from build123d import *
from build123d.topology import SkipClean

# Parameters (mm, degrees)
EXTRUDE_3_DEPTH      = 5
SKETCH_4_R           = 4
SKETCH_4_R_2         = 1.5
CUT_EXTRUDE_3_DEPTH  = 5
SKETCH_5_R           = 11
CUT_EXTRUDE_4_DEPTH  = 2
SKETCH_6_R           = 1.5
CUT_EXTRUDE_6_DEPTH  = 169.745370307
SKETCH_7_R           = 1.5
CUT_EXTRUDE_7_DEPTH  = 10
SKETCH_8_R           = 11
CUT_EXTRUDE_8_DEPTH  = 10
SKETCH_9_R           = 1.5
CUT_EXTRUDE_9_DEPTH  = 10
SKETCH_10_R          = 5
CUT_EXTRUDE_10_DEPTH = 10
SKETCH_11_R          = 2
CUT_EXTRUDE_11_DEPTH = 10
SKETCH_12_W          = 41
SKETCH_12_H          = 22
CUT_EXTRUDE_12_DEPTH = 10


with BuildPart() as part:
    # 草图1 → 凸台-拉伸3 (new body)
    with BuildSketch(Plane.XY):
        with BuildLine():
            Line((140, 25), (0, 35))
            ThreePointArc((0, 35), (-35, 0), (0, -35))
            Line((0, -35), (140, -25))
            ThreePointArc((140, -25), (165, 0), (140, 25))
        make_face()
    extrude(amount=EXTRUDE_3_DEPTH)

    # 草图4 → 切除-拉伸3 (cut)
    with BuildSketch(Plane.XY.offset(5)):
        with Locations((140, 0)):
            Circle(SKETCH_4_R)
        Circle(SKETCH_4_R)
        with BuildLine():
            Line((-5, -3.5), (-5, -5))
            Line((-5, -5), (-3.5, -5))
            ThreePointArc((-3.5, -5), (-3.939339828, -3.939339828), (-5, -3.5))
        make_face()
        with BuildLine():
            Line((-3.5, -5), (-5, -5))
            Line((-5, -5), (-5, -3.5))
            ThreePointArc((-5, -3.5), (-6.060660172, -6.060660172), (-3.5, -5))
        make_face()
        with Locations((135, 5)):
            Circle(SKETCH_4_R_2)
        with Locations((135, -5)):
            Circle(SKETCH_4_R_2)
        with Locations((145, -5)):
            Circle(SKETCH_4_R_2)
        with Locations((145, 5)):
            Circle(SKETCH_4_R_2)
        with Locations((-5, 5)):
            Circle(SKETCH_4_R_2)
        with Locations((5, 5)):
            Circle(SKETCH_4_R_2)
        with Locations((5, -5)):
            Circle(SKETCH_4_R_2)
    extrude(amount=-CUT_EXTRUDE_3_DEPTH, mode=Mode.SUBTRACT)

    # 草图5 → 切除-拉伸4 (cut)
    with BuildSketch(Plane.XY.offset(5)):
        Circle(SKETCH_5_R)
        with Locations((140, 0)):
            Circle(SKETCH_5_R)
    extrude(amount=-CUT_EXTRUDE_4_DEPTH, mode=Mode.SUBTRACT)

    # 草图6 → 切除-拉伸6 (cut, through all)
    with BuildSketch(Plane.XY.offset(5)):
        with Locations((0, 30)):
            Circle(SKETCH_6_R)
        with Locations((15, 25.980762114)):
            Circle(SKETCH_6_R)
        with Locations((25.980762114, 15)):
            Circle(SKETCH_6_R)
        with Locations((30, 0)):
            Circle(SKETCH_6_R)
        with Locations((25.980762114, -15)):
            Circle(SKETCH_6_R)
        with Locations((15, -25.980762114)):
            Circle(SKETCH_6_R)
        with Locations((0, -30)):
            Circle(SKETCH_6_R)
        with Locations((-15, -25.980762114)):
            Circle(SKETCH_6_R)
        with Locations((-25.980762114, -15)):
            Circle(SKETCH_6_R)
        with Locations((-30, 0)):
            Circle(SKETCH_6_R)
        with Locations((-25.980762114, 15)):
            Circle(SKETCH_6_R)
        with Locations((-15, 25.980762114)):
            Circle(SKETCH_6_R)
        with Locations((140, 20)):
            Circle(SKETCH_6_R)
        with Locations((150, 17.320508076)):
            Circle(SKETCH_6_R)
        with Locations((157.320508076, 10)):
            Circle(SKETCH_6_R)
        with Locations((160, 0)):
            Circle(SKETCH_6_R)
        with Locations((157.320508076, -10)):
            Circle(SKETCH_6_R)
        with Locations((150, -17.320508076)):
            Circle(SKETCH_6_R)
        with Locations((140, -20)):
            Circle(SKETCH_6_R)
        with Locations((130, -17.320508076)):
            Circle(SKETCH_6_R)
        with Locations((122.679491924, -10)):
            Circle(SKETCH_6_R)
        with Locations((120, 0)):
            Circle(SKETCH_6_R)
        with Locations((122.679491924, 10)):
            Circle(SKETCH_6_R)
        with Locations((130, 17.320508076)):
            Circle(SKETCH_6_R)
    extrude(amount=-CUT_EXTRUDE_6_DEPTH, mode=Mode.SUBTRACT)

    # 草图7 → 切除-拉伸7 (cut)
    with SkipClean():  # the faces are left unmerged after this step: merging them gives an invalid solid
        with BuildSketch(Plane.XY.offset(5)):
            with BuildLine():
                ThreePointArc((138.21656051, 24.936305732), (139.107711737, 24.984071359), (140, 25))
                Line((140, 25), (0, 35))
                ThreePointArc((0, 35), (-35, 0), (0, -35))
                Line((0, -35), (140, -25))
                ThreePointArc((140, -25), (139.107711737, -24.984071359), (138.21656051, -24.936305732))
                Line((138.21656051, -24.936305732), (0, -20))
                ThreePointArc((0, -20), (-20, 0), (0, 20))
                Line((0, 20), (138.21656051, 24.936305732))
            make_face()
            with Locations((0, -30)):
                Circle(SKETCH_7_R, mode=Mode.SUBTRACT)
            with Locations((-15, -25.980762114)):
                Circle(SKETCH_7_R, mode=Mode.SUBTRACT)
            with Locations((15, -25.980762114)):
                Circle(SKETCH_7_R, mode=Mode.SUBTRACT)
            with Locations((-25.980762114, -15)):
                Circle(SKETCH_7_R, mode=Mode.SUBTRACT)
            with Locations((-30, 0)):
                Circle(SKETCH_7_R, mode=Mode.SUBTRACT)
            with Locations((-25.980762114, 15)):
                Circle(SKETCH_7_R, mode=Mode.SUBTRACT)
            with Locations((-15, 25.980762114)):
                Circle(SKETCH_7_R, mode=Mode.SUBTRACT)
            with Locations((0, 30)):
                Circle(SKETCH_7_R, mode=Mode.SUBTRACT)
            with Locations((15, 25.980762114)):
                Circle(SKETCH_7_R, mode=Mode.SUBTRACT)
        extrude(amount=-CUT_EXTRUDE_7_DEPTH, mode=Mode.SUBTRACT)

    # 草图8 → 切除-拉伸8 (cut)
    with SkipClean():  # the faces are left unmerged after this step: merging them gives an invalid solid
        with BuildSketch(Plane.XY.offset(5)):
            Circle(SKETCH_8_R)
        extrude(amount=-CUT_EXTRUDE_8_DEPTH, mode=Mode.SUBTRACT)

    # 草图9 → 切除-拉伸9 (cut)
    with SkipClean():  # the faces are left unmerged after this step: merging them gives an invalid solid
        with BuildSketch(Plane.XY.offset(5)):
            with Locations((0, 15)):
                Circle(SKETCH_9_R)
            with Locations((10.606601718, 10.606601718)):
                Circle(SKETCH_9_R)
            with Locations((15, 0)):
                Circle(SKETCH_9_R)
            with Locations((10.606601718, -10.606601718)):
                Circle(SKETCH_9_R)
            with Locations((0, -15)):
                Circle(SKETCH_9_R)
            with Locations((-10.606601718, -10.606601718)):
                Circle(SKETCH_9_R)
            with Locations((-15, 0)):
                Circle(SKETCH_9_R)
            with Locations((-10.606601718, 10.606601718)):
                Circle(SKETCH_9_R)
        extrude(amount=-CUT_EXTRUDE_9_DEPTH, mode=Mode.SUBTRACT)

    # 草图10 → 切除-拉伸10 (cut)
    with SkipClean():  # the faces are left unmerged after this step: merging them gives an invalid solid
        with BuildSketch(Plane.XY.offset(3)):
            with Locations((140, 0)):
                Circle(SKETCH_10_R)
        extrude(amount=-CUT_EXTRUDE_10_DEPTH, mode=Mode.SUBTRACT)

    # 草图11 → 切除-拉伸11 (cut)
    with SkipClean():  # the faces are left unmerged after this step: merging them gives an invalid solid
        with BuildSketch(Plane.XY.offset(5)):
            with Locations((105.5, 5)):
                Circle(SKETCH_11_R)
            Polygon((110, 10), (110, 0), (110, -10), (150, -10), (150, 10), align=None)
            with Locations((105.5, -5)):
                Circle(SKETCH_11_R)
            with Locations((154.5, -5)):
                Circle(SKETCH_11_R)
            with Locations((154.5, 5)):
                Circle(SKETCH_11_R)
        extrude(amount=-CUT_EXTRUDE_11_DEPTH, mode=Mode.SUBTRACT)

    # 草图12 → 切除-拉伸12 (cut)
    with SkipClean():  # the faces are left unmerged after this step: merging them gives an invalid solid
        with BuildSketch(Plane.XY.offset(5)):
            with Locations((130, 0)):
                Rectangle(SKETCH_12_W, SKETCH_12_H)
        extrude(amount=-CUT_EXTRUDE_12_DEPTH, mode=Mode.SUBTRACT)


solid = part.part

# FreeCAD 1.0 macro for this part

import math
import FreeCAD as App
import Part
import Sketcher

doc = App.newDocument("Part")
body = doc.addObject("PartDesign::Body", "Body")

sketch1 = body.newObject("Sketcher::SketchObject", "Sketch")
sketch1.AttachmentSupport = (doc.getObject("XY_Plane"), [""])
sketch1.MapMode = "FlatFace"
sketch1.addGeometry([
    Part.LineSegment(App.Vector(140, 25, 0), App.Vector(0, 35, 0)),
    Part.ArcOfCircle(Part.Circle(App.Vector(0, 0, 0), App.Vector(0, 0, 1), 35), math.radians(90), math.radians(270)),
    Part.LineSegment(App.Vector(0, -35, 0), App.Vector(140, -25, 0)),
    Part.ArcOfCircle(Part.Circle(App.Vector(140, 0, 0), App.Vector(0, 0, 1), 25), math.radians(-90), math.radians(90)),
], False)
sketch1.addConstraint([
    Sketcher.Constraint("Coincident", 0, 2, 1, 1),
    Sketcher.Constraint("Coincident", 1, 2, 2, 1),
    Sketcher.Constraint("Coincident", 2, 2, 3, 1),
    Sketcher.Constraint("Coincident", 3, 2, 0, 1),
    Sketcher.Constraint("Coincident", 1, 3, -1, 1),
    Sketcher.Constraint("Symmetric", 2, 2, 3, 2, -1),
    Sketcher.Constraint("PointOnObject", 0, 2, -2),
    Sketcher.Constraint("PointOnObject", 1, 2, -2),
    Sketcher.Constraint("Vertical", 3, 3, 2, 2),
    Sketcher.Constraint("Radius", 1, 35.0),
    Sketcher.Constraint("Radius", 3, 25.0),
    Sketcher.Constraint("DistanceX", -1, 1, 3, 3, 140.0),
])
pad1 = body.newObject("PartDesign::Pad", "Pad")
pad1.Profile = sketch1
pad1.Length = 5

sketch2 = body.newObject("Sketcher::SketchObject", "Sketch001")
sketch2.AttachmentSupport = (doc.getObject("XY_Plane"), [""])
sketch2.MapMode = "FlatFace"
sketch2.AttachmentOffset = App.Placement(App.Vector(0, 0, 5), App.Rotation())
sketch2.addGeometry([
    Part.Circle(App.Vector(140, 0, 0), App.Vector(0, 0, 1), 4),
    Part.Circle(App.Vector(0, 0, 0), App.Vector(0, 0, 1), 4),
    Part.ArcOfCircle(Part.Circle(App.Vector(-5, -5, 0), App.Vector(0, 0, 1), 1.5), math.radians(0), math.radians(90)),
    Part.ArcOfCircle(Part.Circle(App.Vector(-5, -5, 0), App.Vector(0, 0, 1), 1.5), math.radians(90), math.radians(360)),
    Part.Circle(App.Vector(135, 5, 0), App.Vector(0, 0, 1), 1.5),
    Part.Circle(App.Vector(135, -5, 0), App.Vector(0, 0, 1), 1.5),
    Part.Circle(App.Vector(145, -5, 0), App.Vector(0, 0, 1), 1.5),
    Part.Circle(App.Vector(145, 5, 0), App.Vector(0, 0, 1), 1.5),
    Part.Circle(App.Vector(-5, 5, 0), App.Vector(0, 0, 1), 1.5),
    Part.Circle(App.Vector(5, 5, 0), App.Vector(0, 0, 1), 1.5),
    Part.Circle(App.Vector(5, -5, 0), App.Vector(0, 0, 1), 1.5),
], False)
sketch2.addConstraint([
    Sketcher.Constraint("Tangent", 2, 1, 3, 2),
    Sketcher.Constraint("Coincident", 3, 1, 2, 2),
    Sketcher.Constraint("Coincident", 1, 3, -1, 1),
    Sketcher.Constraint("Equal", 0, 1),
    Sketcher.Constraint("Equal", 3, 4),
    Sketcher.Constraint("Equal", 4, 5),
    Sketcher.Constraint("Equal", 5, 6),
    Sketcher.Constraint("Equal", 6, 7),
    Sketcher.Constraint("Equal", 7, 8),
    Sketcher.Constraint("Equal", 8, 9),
    Sketcher.Constraint("Equal", 9, 10),
    Sketcher.Constraint("Symmetric", 2, 3, 9, 3, -1, 1),
    Sketcher.Constraint("Symmetric", 8, 3, 10, 3, -1, 1),
    Sketcher.Constraint("Symmetric", 8, 3, 9, 3, -2),
    Sketcher.Constraint("Symmetric", 4, 3, 5, 3, -1),
    Sketcher.Constraint("Symmetric", 6, 3, 7, 3, -1),
    Sketcher.Constraint("PointOnObject", 0, 3, -1),
    Sketcher.Constraint("Horizontal", 3, 3, 5, 3),
    Sketcher.Constraint("Horizontal", 5, 3, 6, 3),
    Sketcher.Constraint("Horizontal", 10, 3, 2, 1),
    Sketcher.Constraint("Vertical", 8, 3, 3, 1),
    Sketcher.Constraint("Diameter", 0, 8.0),
    Sketcher.Constraint("Diameter", 4, 3.0),
    Sketcher.Constraint("DistanceX", -1, 1, 0, 3, 140.0),
    Sketcher.Constraint("DistanceX", 2, 3, -1, 1, 5.0),
    Sketcher.Constraint("DistanceY", 2, 3, -1, 1, 5.0),
    Sketcher.Constraint("DistanceX", -1, 1, 4, 3, 135.0),
    Sketcher.Constraint("DistanceX", -1, 1, 6, 3, 145.0),
])
pocket1 = body.newObject("PartDesign::Pocket", "Pocket")
pocket1.Profile = sketch2
pocket1.Length = 5

sketch3 = body.newObject("Sketcher::SketchObject", "Sketch002")
sketch3.AttachmentSupport = (doc.getObject("XY_Plane"), [""])
sketch3.MapMode = "FlatFace"
sketch3.AttachmentOffset = App.Placement(App.Vector(0, 0, 5), App.Rotation())
sketch3.addGeometry([
    Part.Circle(App.Vector(0, 0, 0), App.Vector(0, 0, 1), 11),
    Part.Circle(App.Vector(140, 0, 0), App.Vector(0, 0, 1), 11),
], False)
sketch3.addConstraint([
    Sketcher.Constraint("Coincident", 0, 3, -1, 1),
    Sketcher.Constraint("Equal", 0, 1),
    Sketcher.Constraint("PointOnObject", 1, 3, -1),
    Sketcher.Constraint("Diameter", 0, 22.0),
    Sketcher.Constraint("DistanceX", -1, 1, 1, 3, 140.0),
])
pocket2 = body.newObject("PartDesign::Pocket", "Pocket001")
pocket2.Profile = sketch3
pocket2.Length = 2

sketch4 = body.newObject("Sketcher::SketchObject", "Sketch003")
sketch4.AttachmentSupport = (doc.getObject("XY_Plane"), [""])
sketch4.MapMode = "FlatFace"
sketch4.AttachmentOffset = App.Placement(App.Vector(0, 0, 5), App.Rotation())
sketch4.addGeometry([
    Part.Circle(App.Vector(0, 30, 0), App.Vector(0, 0, 1), 1.5),
    Part.Circle(App.Vector(15, 25.980762, 0), App.Vector(0, 0, 1), 1.5),
    Part.Circle(App.Vector(25.980762, 15, 0), App.Vector(0, 0, 1), 1.5),
    Part.Circle(App.Vector(30, 0, 0), App.Vector(0, 0, 1), 1.5),
    Part.Circle(App.Vector(25.980762, -15, 0), App.Vector(0, 0, 1), 1.5),
    Part.Circle(App.Vector(15, -25.980762, 0), App.Vector(0, 0, 1), 1.5),
    Part.Circle(App.Vector(0, -30, 0), App.Vector(0, 0, 1), 1.5),
    Part.Circle(App.Vector(-15, -25.980762, 0), App.Vector(0, 0, 1), 1.5),
    Part.Circle(App.Vector(-25.980762, -15, 0), App.Vector(0, 0, 1), 1.5),
    Part.Circle(App.Vector(-30, 0, 0), App.Vector(0, 0, 1), 1.5),
    Part.Circle(App.Vector(-25.980762, 15, 0), App.Vector(0, 0, 1), 1.5),
    Part.Circle(App.Vector(-15, 25.980762, 0), App.Vector(0, 0, 1), 1.5),
    Part.Circle(App.Vector(140, 20, 0), App.Vector(0, 0, 1), 1.5),
    Part.Circle(App.Vector(150, 17.320508, 0), App.Vector(0, 0, 1), 1.5),
    Part.Circle(App.Vector(157.320508, 10, 0), App.Vector(0, 0, 1), 1.5),
    Part.Circle(App.Vector(160, 0, 0), App.Vector(0, 0, 1), 1.5),
    Part.Circle(App.Vector(157.320508, -10, 0), App.Vector(0, 0, 1), 1.5),
    Part.Circle(App.Vector(150, -17.320508, 0), App.Vector(0, 0, 1), 1.5),
    Part.Circle(App.Vector(140, -20, 0), App.Vector(0, 0, 1), 1.5),
    Part.Circle(App.Vector(130, -17.320508, 0), App.Vector(0, 0, 1), 1.5),
    Part.Circle(App.Vector(122.679492, -10, 0), App.Vector(0, 0, 1), 1.5),
    Part.Circle(App.Vector(120, 0, 0), App.Vector(0, 0, 1), 1.5),
    Part.Circle(App.Vector(122.679492, 10, 0), App.Vector(0, 0, 1), 1.5),
    Part.Circle(App.Vector(130, 17.320508, 0), App.Vector(0, 0, 1), 1.5),
], False)
sketch4.addConstraint([
    Sketcher.Constraint("Equal", 0, 1),
    Sketcher.Constraint("Equal", 1, 2),
    Sketcher.Constraint("Equal", 2, 3),
    Sketcher.Constraint("Equal", 3, 4),
    Sketcher.Constraint("Equal", 4, 5),
    Sketcher.Constraint("Equal", 5, 6),
    Sketcher.Constraint("Equal", 6, 7),
    Sketcher.Constraint("Equal", 7, 8),
    Sketcher.Constraint("Equal", 8, 9),
    Sketcher.Constraint("Equal", 9, 10),
    Sketcher.Constraint("Equal", 10, 11),
    Sketcher.Constraint("Equal", 11, 12),
    Sketcher.Constraint("Equal", 12, 13),
    Sketcher.Constraint("Equal", 13, 14),
    Sketcher.Constraint("Equal", 14, 15),
    Sketcher.Constraint("Equal", 15, 16),
    Sketcher.Constraint("Equal", 16, 17),
    Sketcher.Constraint("Equal", 17, 18),
    Sketcher.Constraint("Equal", 18, 19),
    Sketcher.Constraint("Equal", 19, 20),
    Sketcher.Constraint("Equal", 20, 21),
    Sketcher.Constraint("Equal", 21, 22),
    Sketcher.Constraint("Equal", 22, 23),
    Sketcher.Constraint("Symmetric", 0, 3, 6, 3, -1, 1),
    Sketcher.Constraint("Symmetric", 1, 3, 7, 3, -1, 1),
    Sketcher.Constraint("Symmetric", 2, 3, 8, 3, -1, 1),
    Sketcher.Constraint("Symmetric", 3, 3, 9, 3, -1, 1),
    Sketcher.Constraint("Symmetric", 4, 3, 10, 3, -1, 1),
    Sketcher.Constraint("Symmetric", 5, 3, 11, 3, -1, 1),
    Sketcher.Constraint("Symmetric", 5, 3, 7, 3, -2),
    Sketcher.Constraint("Symmetric", 4, 3, 8, 3, -2),
    Sketcher.Constraint("Symmetric", 14, 3, 16, 3, -1),
    Sketcher.Constraint("Symmetric", 13, 3, 17, 3, -1),
    Sketcher.Constraint("Symmetric", 12, 3, 18, 3, -1),
    Sketcher.Constraint("Symmetric", 20, 3, 22, 3, -1),
    Sketcher.Constraint("Symmetric", 19, 3, 23, 3, -1),
    Sketcher.Constraint("PointOnObject", 0, 3, -2),
    Sketcher.Constraint("PointOnObject", 3, 3, -1),
    Sketcher.Constraint("PointOnObject", 15, 3, -1),
    Sketcher.Constraint("PointOnObject", 21, 3, -1),
    Sketcher.Constraint("Horizontal", 17, 3, 19, 3),
    Sketcher.Constraint("Horizontal", 16, 3, 20, 3),
    Sketcher.Constraint("Diameter", 0, 3.0),
    Sketcher.Constraint("DistanceY", -1, 1, 0, 3, 30.0),
    Sketcher.Constraint("DistanceX", -1, 1, 1, 3, 15.0),
    Sketcher.Constraint("DistanceY", -1, 1, 2, 3, 15.0),
    Sketcher.Constraint("DistanceX", -1, 1, 3, 3, 30.0),
    Sketcher.Constraint("DistanceX", -1, 1, 12, 3, 140.0),
    Sketcher.Constraint("DistanceY", -1, 1, 12, 3, 20.0),
    Sketcher.Constraint("DistanceX", -1, 1, 13, 3, 150.0),
    Sketcher.Constraint("DistanceY", -1, 1, 14, 3, 10.0),
    Sketcher.Constraint("DistanceX", -1, 1, 15, 3, 160.0),
    Sketcher.Constraint("DistanceX", -1, 1, 19, 3, 130.0),
    Sketcher.Constraint("DistanceX", -1, 1, 21, 3, 120.0),
    Sketcher.Constraint("DistanceY", -1, 1, 13, 3, 17.320508),
    Sketcher.Constraint("DistanceX", -1, 1, 14, 3, 157.320508),
    Sketcher.Constraint("DistanceX", -1, 1, 20, 3, 122.679492),
    Sketcher.Constraint("DistanceY", -1, 1, 1, 3, 25.980762),
    Sketcher.Constraint("DistanceX", -1, 1, 2, 3, 25.980762),
])
pocket3 = body.newObject("PartDesign::Pocket", "Pocket002")
pocket3.Profile = sketch4
pocket3.Type = "ThroughAll"

sketch5 = body.newObject("Sketcher::SketchObject", "Sketch004")
sketch5.AttachmentSupport = (doc.getObject("XY_Plane"), [""])
sketch5.MapMode = "FlatFace"
sketch5.AttachmentOffset = App.Placement(App.Vector(0, 0, 5), App.Rotation())
sketch5.addGeometry([
    Part.ArcOfCircle(Part.Circle(App.Vector(140, 0.000001, 0), App.Vector(0, 0, 1), 24.999999), math.radians(90), math.radians(94.090817)),
    Part.LineSegment(App.Vector(140, 25, 0), App.Vector(0, 35, 0)),
    Part.ArcOfCircle(Part.Circle(App.Vector(0, 0, 0), App.Vector(0, 0, 1), 35), math.radians(90), math.radians(270)),
    Part.LineSegment(App.Vector(0, -35, 0), App.Vector(140, -25, 0)),
    Part.ArcOfCircle(Part.Circle(App.Vector(140, -0.000001, 0), App.Vector(0, 0, 1), 24.999999), math.radians(-94.090817), math.radians(-90)),
    Part.LineSegment(App.Vector(138.216561, -24.936306, 0), App.Vector(0, -20, 0)),
    Part.ArcOfCircle(Part.Circle(App.Vector(0, 0, 0), App.Vector(0, 0, 1), 20), math.radians(90), math.radians(270)),
    Part.LineSegment(App.Vector(0, 20, 0), App.Vector(138.216561, 24.936306, 0)),
    Part.Circle(App.Vector(-15, -25.980762, 0), App.Vector(0, 0, 1), 1.5),
    Part.Circle(App.Vector(-25.980762, -15, 0), App.Vector(0, 0, 1), 1.5),
    Part.Circle(App.Vector(0, -30, 0), App.Vector(0, 0, 1), 1.5),
    Part.Circle(App.Vector(15, -25.980762, 0), App.Vector(0, 0, 1), 1.5),
    Part.Circle(App.Vector(-30, 0, 0), App.Vector(0, 0, 1), 1.5),
    Part.Circle(App.Vector(-25.980762, 15, 0), App.Vector(0, 0, 1), 1.5),
    Part.Circle(App.Vector(-15, 25.980762, 0), App.Vector(0, 0, 1), 1.5),
    Part.Circle(App.Vector(0, 30, 0), App.Vector(0, 0, 1), 1.5),
    Part.Circle(App.Vector(15, 25.980762, 0), App.Vector(0, 0, 1), 1.5),
], False)
sketch5.addConstraint([
    Sketcher.Constraint("Coincident", 0, 1, 1, 1),
    Sketcher.Constraint("Coincident", 1, 2, 2, 1),
    Sketcher.Constraint("Coincident", 2, 2, 3, 1),
    Sketcher.Constraint("Coincident", 3, 2, 4, 2),
    Sketcher.Constraint("Coincident", 4, 1, 5, 1),
    Sketcher.Constraint("Coincident", 5, 2, 6, 2),
    Sketcher.Constraint("Coincident", 6, 1, 7, 1),
    Sketcher.Constraint("Coincident", 7, 2, 0, 2),
    Sketcher.Constraint("Coincident", 2, 3, -1, 1),
    Sketcher.Constraint("Coincident", 6, 3, -1, 1),
    Sketcher.Constraint("Coincident", 4, 3, 0, 3),
    Sketcher.Constraint("Equal", 0, 4),
    Sketcher.Constraint("Equal", 8, 9),
    Sketcher.Constraint("Equal", 9, 10),
    Sketcher.Constraint("Equal", 10, 11),
    Sketcher.Constraint("Equal", 11, 12),
    Sketcher.Constraint("Equal", 12, 13),
    Sketcher.Constraint("Equal", 13, 14),
    Sketcher.Constraint("Equal", 14, 15),
    Sketcher.Constraint("Equal", 15, 16),
    Sketcher.Constraint("Symmetric", 11, 3, 14, 3, -1, 1),
    Sketcher.Constraint("Symmetric", 10, 3, 15, 3, -1, 1),
    Sketcher.Constraint("Symmetric", 8, 3, 16, 3, -1, 1),
    Sketcher.Constraint("Symmetric", 8, 3, 11, 3, -2),
    Sketcher.Constraint("Symmetric", 9, 3, 13, 3, -1),
    Sketcher.Constraint("Symmetric", 0, 1, 3, 2, -1),
    Sketcher.Constraint("PointOnObject", 10, 3, -2),
    Sketcher.Constraint("PointOnObject", 12, 3, -1),
    Sketcher.Constraint("PointOnObject", 1, 2, -2),
    Sketcher.Constraint("PointOnObject", 2, 2, -2),
    Sketcher.Constraint("PointOnObject", 5, 2, -2),
    Sketcher.Constraint("PointOnObject", 6, 1, -2),
    Sketcher.Constraint("Vertical", 4, 3, 0, 1),
    Sketcher.Constraint("Vertical", 4, 1, 7, 2),
    Sketcher.Constraint("Diameter", 8, 3.0),
    Sketcher.Constraint("Radius", 0, 24.999999),
    Sketcher.Constraint("Radius", 2, 35.0),
    Sketcher.Constraint("Radius", 6, 20.0),
    Sketcher.Constraint("DistanceX", -1, 1, 0, 3, 140.0),
    Sketcher.Constraint("DistanceX", 8, 3, -1, 1, 15.0),
    Sketcher.Constraint("DistanceY", 9, 3, -1, 1, 15.0),
    Sketcher.Constraint("DistanceY", 10, 3, -1, 1, 30.0),
    Sketcher.Constraint("DistanceX", 12, 3, -1, 1, 30.0),
    Sketcher.Constraint("Distance", 5, 138.304681),
    Sketcher.Constraint("DistanceY", 8, 3, 4, 3, 25.980761),
    Sketcher.Constraint("DistanceX", 9, 3, -1, 1, 25.980762),
])
pocket4 = body.newObject("PartDesign::Pocket", "Pocket003")
pocket4.Profile = sketch5
pocket4.Length = 10

sketch6 = body.newObject("Sketcher::SketchObject", "Sketch005")
sketch6.AttachmentSupport = (doc.getObject("XY_Plane"), [""])
sketch6.MapMode = "FlatFace"
sketch6.AttachmentOffset = App.Placement(App.Vector(0, 0, 5), App.Rotation())
sketch6.addGeometry(Part.Circle(App.Vector(0, 0, 0), App.Vector(0, 0, 1), 11), False)
sketch6.addConstraint([
    Sketcher.Constraint("Coincident", 0, 3, -1, 1),
    Sketcher.Constraint("Diameter", 0, 22.0),
])
pocket5 = body.newObject("PartDesign::Pocket", "Pocket004")
pocket5.Profile = sketch6
pocket5.Length = 10

sketch7 = body.newObject("Sketcher::SketchObject", "Sketch006")
sketch7.AttachmentSupport = (doc.getObject("XY_Plane"), [""])
sketch7.MapMode = "FlatFace"
sketch7.AttachmentOffset = App.Placement(App.Vector(0, 0, 5), App.Rotation())
sketch7.addGeometry([
    Part.Circle(App.Vector(0, 15, 0), App.Vector(0, 0, 1), 1.5),
    Part.Circle(App.Vector(10.606602, 10.606602, 0), App.Vector(0, 0, 1), 1.5),
    Part.Circle(App.Vector(15, 0, 0), App.Vector(0, 0, 1), 1.5),
    Part.Circle(App.Vector(10.606602, -10.606602, 0), App.Vector(0, 0, 1), 1.5),
    Part.Circle(App.Vector(0, -15, 0), App.Vector(0, 0, 1), 1.5),
    Part.Circle(App.Vector(-10.606602, -10.606602, 0), App.Vector(0, 0, 1), 1.5),
    Part.Circle(App.Vector(-15, 0, 0), App.Vector(0, 0, 1), 1.5),
    Part.Circle(App.Vector(-10.606602, 10.606602, 0), App.Vector(0, 0, 1), 1.5),
], False)
sketch7.addConstraint([
    Sketcher.Constraint("Equal", 0, 1),
    Sketcher.Constraint("Equal", 1, 2),
    Sketcher.Constraint("Equal", 2, 3),
    Sketcher.Constraint("Equal", 3, 4),
    Sketcher.Constraint("Equal", 4, 5),
    Sketcher.Constraint("Equal", 5, 6),
    Sketcher.Constraint("Equal", 6, 7),
    Sketcher.Constraint("Symmetric", 0, 3, 4, 3, -1, 1),
    Sketcher.Constraint("Symmetric", 1, 3, 5, 3, -1, 1),
    Sketcher.Constraint("Symmetric", 2, 3, 6, 3, -1, 1),
    Sketcher.Constraint("Symmetric", 3, 3, 7, 3, -1, 1),
    Sketcher.Constraint("Symmetric", 3, 3, 5, 3, -2),
    Sketcher.Constraint("PointOnObject", 0, 3, -2),
    Sketcher.Constraint("PointOnObject", 2, 3, -1),
    Sketcher.Constraint("Diameter", 0, 3.0),
    Sketcher.Constraint("DistanceY", -1, 1, 0, 3, 15.0),
    Sketcher.Constraint("DistanceX", -1, 1, 2, 3, 15.0),
    Sketcher.Constraint("DistanceX", -1, 1, 1, 3, 10.606602),
    Sketcher.Constraint("DistanceY", -1, 1, 1, 3, 10.606602),
])
pocket6 = body.newObject("PartDesign::Pocket", "Pocket005")
pocket6.Profile = sketch7
pocket6.Length = 10

sketch8 = body.newObject("Sketcher::SketchObject", "Sketch007")
sketch8.AttachmentSupport = (doc.getObject("XY_Plane"), [""])
sketch8.MapMode = "FlatFace"
sketch8.AttachmentOffset = App.Placement(App.Vector(0, 0, 3), App.Rotation())
sketch8.addGeometry(Part.Circle(App.Vector(140, 0, 0), App.Vector(0, 0, 1), 5), False)
sketch8.addConstraint([
    Sketcher.Constraint("PointOnObject", 0, 3, -1),
    Sketcher.Constraint("Diameter", 0, 10.0),
    Sketcher.Constraint("DistanceX", -1, 1, 0, 3, 140.0),
])
pocket7 = body.newObject("PartDesign::Pocket", "Pocket006")
pocket7.Profile = sketch8
pocket7.Length = 10

sketch9 = body.newObject("Sketcher::SketchObject", "Sketch008")
sketch9.AttachmentSupport = (doc.getObject("XY_Plane"), [""])
sketch9.MapMode = "FlatFace"
sketch9.AttachmentOffset = App.Placement(App.Vector(0, 0, 5), App.Rotation())
sketch9.addGeometry([
    Part.Circle(App.Vector(105.5, 5, 0), App.Vector(0, 0, 1), 2),
    Part.LineSegment(App.Vector(110, 10, 0), App.Vector(110, 0, 0)),
    Part.LineSegment(App.Vector(110, 0, 0), App.Vector(110, -10, 0)),
    Part.LineSegment(App.Vector(110, -10, 0), App.Vector(150, -10, 0)),
    Part.LineSegment(App.Vector(150, -10, 0), App.Vector(150, 10, 0)),
    Part.LineSegment(App.Vector(150, 10, 0), App.Vector(110, 10, 0)),
    Part.Circle(App.Vector(105.5, -5, 0), App.Vector(0, 0, 1), 2),
    Part.Circle(App.Vector(154.5, -5, 0), App.Vector(0, 0, 1), 2),
    Part.Circle(App.Vector(154.5, 5, 0), App.Vector(0, 0, 1), 2),
], False)
sketch9.addConstraint([
    Sketcher.Constraint("Coincident", 1, 2, 2, 1),
    Sketcher.Constraint("Coincident", 2, 2, 3, 1),
    Sketcher.Constraint("Coincident", 3, 2, 4, 1),
    Sketcher.Constraint("Coincident", 4, 2, 5, 1),
    Sketcher.Constraint("Coincident", 5, 2, 1, 1),
    Sketcher.Constraint("Vertical", 1),
    Sketcher.Constraint("Vertical", 2),
    Sketcher.Constraint("Horizontal", 3),
    Sketcher.Constraint("Vertical", 4),
    Sketcher.Constraint("Horizontal", 5),
    Sketcher.Constraint("Equal", 0, 6),
    Sketcher.Constraint("Equal", 6, 7),
    Sketcher.Constraint("Equal", 7, 8),
    Sketcher.Constraint("Symmetric", 0, 3, 6, 3, -1),
    Sketcher.Constraint("Symmetric", 7, 3, 8, 3, -1),
    Sketcher.Constraint("PointOnObject", 1, 2, -1),
    Sketcher.Constraint("Horizontal", 6, 3, 7, 3),
    Sketcher.Constraint("Equal", 1, 2),
    Sketcher.Constraint("Diameter", 0, 4.0),
    Sketcher.Constraint("DistanceX", 3, 1, 3, 2, 40.0),
    Sketcher.Constraint("DistanceY", 1, 2, 1, 1, 10.0),
    Sketcher.Constraint("DistanceY", -1, 1, 0, 3, 5.0),
    Sketcher.Constraint("DistanceX", -1, 1, 1, 2, 110.0),
    Sketcher.Constraint("DistanceX", 6, 3, 7, 3, 49.0),
    Sketcher.Constraint("DistanceX", -1, 1, 0, 3, 105.5),
])
pocket8 = body.newObject("PartDesign::Pocket", "Pocket007")
pocket8.Profile = sketch9
pocket8.Length = 10

sketch10 = body.newObject("Sketcher::SketchObject", "Sketch009")
sketch10.AttachmentSupport = (doc.getObject("XY_Plane"), [""])
sketch10.MapMode = "FlatFace"
sketch10.AttachmentOffset = App.Placement(App.Vector(0, 0, 5), App.Rotation())
sketch10.addGeometry([
    Part.LineSegment(App.Vector(109.5, 11, 0), App.Vector(109.5, -11, 0)),
    Part.LineSegment(App.Vector(109.5, -11, 0), App.Vector(150.5, -11, 0)),
    Part.LineSegment(App.Vector(150.5, -11, 0), App.Vector(150.5, 11, 0)),
    Part.LineSegment(App.Vector(150.5, 11, 0), App.Vector(109.5, 11, 0)),
], False)
sketch10.addConstraint([
    Sketcher.Constraint("Coincident", 0, 2, 1, 1),
    Sketcher.Constraint("Coincident", 1, 2, 2, 1),
    Sketcher.Constraint("Coincident", 2, 2, 3, 1),
    Sketcher.Constraint("Coincident", 3, 2, 0, 1),
    Sketcher.Constraint("Vertical", 0),
    Sketcher.Constraint("Horizontal", 1),
    Sketcher.Constraint("Vertical", 2),
    Sketcher.Constraint("Horizontal", 3),
    Sketcher.Constraint("DistanceX", 1, 1, 1, 2, 41.0),
    Sketcher.Constraint("DistanceY", 0, 2, 0, 1, 22.0),
    Sketcher.Constraint("DistanceY", 0, 2, -1, 1, 11.0),
    Sketcher.Constraint("DistanceX", -1, 1, 0, 2, 109.5),
])
pocket9 = body.newObject("PartDesign::Pocket", "Pocket008")
pocket9.Profile = sketch10
pocket9.Length = 10

doc.recompute()
